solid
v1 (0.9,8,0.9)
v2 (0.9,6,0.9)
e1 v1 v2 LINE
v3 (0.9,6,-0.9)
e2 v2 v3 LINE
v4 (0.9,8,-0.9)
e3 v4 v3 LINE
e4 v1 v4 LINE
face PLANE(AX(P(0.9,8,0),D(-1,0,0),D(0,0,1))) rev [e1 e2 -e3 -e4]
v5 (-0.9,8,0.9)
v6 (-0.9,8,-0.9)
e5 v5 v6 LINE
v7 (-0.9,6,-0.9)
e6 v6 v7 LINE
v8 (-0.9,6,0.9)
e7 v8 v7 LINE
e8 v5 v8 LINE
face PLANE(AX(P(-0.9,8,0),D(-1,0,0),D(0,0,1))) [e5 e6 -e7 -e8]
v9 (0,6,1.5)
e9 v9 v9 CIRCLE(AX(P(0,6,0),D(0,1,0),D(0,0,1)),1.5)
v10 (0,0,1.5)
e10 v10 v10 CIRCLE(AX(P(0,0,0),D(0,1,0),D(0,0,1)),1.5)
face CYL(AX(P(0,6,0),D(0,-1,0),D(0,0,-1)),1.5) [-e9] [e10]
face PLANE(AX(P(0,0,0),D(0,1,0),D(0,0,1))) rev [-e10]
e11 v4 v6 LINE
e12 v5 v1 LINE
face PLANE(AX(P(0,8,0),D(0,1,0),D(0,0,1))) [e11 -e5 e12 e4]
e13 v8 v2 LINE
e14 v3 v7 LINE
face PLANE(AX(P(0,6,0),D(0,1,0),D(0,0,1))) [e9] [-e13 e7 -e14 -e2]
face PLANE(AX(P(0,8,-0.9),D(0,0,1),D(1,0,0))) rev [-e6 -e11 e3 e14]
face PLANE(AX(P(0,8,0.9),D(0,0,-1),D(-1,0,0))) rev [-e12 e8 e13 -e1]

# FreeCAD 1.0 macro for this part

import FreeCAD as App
import Part
import Sketcher

V = App.Vector


def add_polygon(sketch, points):
    """Adds a closed chain of lines whose ends are joined by coincident constraints."""
    first, n = sketch.GeometryCount, len(points)
    for a, b in zip(points, points[1:] + points[:1]):
        sketch.addGeometry(Part.LineSegment(App.Vector(*a, 0), App.Vector(*b, 0)), False)
    for i in range(n):
        sketch.addConstraint(Sketcher.Constraint("Coincident", first + i, 2, first + (i + 1) % n, 1))

doc = App.newDocument("Part")
params = doc.addObject("Spreadsheet::Sheet", "Params")
for row, (alias, value) in enumerate([
    ("sketch1_diameter", "3 mm"),
    ("pad1_length", "6 mm"),
    ("sketch2_width", "1.8 mm"),
    ("pad2_length", "2 mm"),
], start=1):
    params.set(f"A{row}", alias)
    params.set(f"B{row}", "=" + value)
    params.setAlias(f"B{row}", alias)

body = doc.addObject("PartDesign::Body", "Body")

# Sketch on XZ plane
sketch1 = doc.addObject("Sketcher::SketchObject", "Sketch")
body.addObject(sketch1)
sketch1.AttachmentSupport = (doc.XZ_Plane, [""])
sketch1.MapMode = "FlatFace"
sketch1.addGeometry(Part.Circle(V(0, 0, 0), V(0, 0, 1), 1.5), False)
sketch1.addConstraint(Sketcher.Constraint("Coincident", 0, 3, -1, 1))
sketch1.addConstraint(Sketcher.Constraint("Diameter", 0, 3.0))
sketch1.setExpression("Constraints[1]", "Params.sketch1_diameter")
pad1 = doc.addObject("PartDesign::Pad", "Pad")
body.addObject(pad1)
pad1.Profile = sketch1
pad1.setExpression("Length", "Params.pad1_length")
pad1.Reversed = True

# Sketch on XZ plane
sketch2 = doc.addObject("Sketcher::SketchObject", "Sketch001")
body.addObject(sketch2)
sketch2.AttachmentSupport = (doc.XZ_Plane, [""])
sketch2.MapMode = "FlatFace"
sketch2.AttachmentOffset = App.Placement(V(0, 0, -6), App.Rotation())
add_polygon(sketch2, [(0.9, 0.9), (0.9, -0.9), (-0.9, -0.9), (-0.9, 0.9)])  # lines 0-3
sketch2.addConstraint(Sketcher.Constraint("Vertical", 0))
sketch2.addConstraint(Sketcher.Constraint("Horizontal", 1))
sketch2.addConstraint(Sketcher.Constraint("Vertical", 2))
sketch2.addConstraint(Sketcher.Constraint("Horizontal", 3))
sketch2.addConstraint(Sketcher.Constraint("Symmetric", 0, 2, 2, 2, -1, 1))
sketch2.addConstraint(Sketcher.Constraint("Equal", 3, 0))
sketch2.addConstraint(Sketcher.Constraint("DistanceX", 1, 2, 1, 1, 1.8))
sketch2.setExpression("Constraints[10]", "Params.sketch2_width")
pad2 = doc.addObject("PartDesign::Pad", "Pad001")
body.addObject(pad2)
pad2.Profile = sketch2
pad2.setExpression("Length", "Params.pad2_length")
pad2.Reversed = True

doc.recompute()
